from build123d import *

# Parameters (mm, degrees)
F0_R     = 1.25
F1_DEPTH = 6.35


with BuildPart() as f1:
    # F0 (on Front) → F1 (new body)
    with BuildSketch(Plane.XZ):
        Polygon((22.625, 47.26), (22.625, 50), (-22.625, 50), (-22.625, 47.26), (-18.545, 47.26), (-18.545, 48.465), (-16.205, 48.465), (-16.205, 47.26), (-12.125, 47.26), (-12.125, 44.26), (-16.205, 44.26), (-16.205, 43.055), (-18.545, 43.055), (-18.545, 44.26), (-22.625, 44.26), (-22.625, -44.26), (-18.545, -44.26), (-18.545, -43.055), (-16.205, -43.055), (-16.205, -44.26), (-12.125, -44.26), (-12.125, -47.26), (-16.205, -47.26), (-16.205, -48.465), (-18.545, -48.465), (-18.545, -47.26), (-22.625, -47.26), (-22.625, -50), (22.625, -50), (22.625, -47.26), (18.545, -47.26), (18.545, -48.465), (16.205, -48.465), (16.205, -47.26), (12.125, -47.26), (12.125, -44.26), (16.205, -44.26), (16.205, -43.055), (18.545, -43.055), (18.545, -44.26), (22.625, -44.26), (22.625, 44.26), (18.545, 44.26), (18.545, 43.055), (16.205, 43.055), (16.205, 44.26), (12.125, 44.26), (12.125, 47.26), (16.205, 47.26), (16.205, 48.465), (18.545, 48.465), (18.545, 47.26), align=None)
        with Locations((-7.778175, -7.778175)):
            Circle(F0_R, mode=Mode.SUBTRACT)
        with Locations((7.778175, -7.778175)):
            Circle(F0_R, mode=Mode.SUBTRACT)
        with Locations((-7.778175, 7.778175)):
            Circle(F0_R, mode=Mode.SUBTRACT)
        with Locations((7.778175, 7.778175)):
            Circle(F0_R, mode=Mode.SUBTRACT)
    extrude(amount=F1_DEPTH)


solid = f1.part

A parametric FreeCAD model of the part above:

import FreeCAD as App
import Part
import Sketcher
Q = App.Units.Quantity


def add_polygon(sketch, points):
    """Adds a closed chain of lines whose ends are joined by coincident constraints."""
    first, n = sketch.GeometryCount, len(points)
    for a, b in zip(points, points[1:] + points[:1]):
        sketch.addGeometry(Part.LineSegment(App.Vector(*a, 0), App.Vector(*b, 0)), False)
    for i in range(n):
        sketch.addConstraint(Sketcher.Constraint("Coincident", first + i, 2, first + (i + 1) % n, 1))

doc = App.newDocument("Part")
body = doc.addObject("PartDesign::Body", "Body")

sketch1 = doc.addObject("Sketcher::SketchObject", "Sketch")
body.addObject(sketch1)
sketch1.AttachmentSupport = (doc.XZ_Plane, [""])
sketch1.MapMode = "FlatFace"
add_polygon(sketch1, [(22.625, 47.26), (22.625, 50), (-22.625, 50), (-22.625, 47.26), (-18.545, 47.26), (-18.545, 48.465), (-16.205, 48.465), (-16.205, 47.26), (-12.125, 47.26), (-12.125, 44.26), (-16.205, 44.26), (-16.205, 43.055), (-18.545, 43.055), (-18.545, 44.26), (-22.625, 44.26), (-22.625, -44.26), (-18.545, -44.26), (-18.545, -43.055), (-16.205, -43.055), (-16.205, -44.26), (-12.125, -44.26), (-12.125, -47.26), (-16.205, -47.26), (-16.205, -48.465), (-18.545, -48.465), (-18.545, -47.26), (-22.625, -47.26), (-22.625, -50), (22.625, -50), (22.625, -47.26), (18.545, -47.26), (18.545, -48.465), (16.205, -48.465), (16.205, -47.26), (12.125, -47.26), (12.125, -44.26), (16.205, -44.26), (16.205, -43.055), (18.545, -43.055), (18.545, -44.26), (22.625, -44.26), (22.625, 44.26), (18.545, 44.26), (18.545, 43.055), (16.205, 43.055), (16.205, 44.26), (12.125, 44.26), (12.125, 47.26), (16.205, 47.26), (16.205, 48.465), (18.545, 48.465), (18.545, 47.26)])
sketch1.addGeometry(Part.Circle(App.Vector(-7.778175, -7.778175, 0), App.Vector(0, 0, 1), 1.25), False)
sketch1.addGeometry(Part.Circle(App.Vector(7.778175, -7.778175, 0), App.Vector(0, 0, 1), 1.25), False)
sketch1.addGeometry(Part.Circle(App.Vector(-7.778175, 7.778175, 0), App.Vector(0, 0, 1), 1.25), False)
sketch1.addGeometry(Part.Circle(App.Vector(7.778175, 7.778175, 0), App.Vector(0, 0, 1), 1.25), False)
sketch1.addConstraint(Sketcher.Constraint("Vertical", 0))
sketch1.addConstraint(Sketcher.Constraint("Horizontal", 1))
sketch1.addConstraint(Sketcher.Constraint("Vertical", 2))
sketch1.addConstraint(Sketcher.Constraint("Horizontal", 3))
sketch1.addConstraint(Sketcher.Constraint("Vertical", 4))
sketch1.addConstraint(Sketcher.Constraint("Horizontal", 5))
sketch1.addConstraint(Sketcher.Constraint("Vertical", 6))
sketch1.addConstraint(Sketcher.Constraint("Horizontal", 7))
sketch1.addConstraint(Sketcher.Constraint("Vertical", 8))
sketch1.addConstraint(Sketcher.Constraint("Horizontal", 9))
sketch1.addConstraint(Sketcher.Constraint("Vertical", 10))
sketch1.addConstraint(Sketcher.Constraint("Horizontal", 11))
sketch1.addConstraint(Sketcher.Constraint("Vertical", 12))
sketch1.addConstraint(Sketcher.Constraint("Horizontal", 13))
sketch1.addConstraint(Sketcher.Constraint("Vertical", 14))
sketch1.addConstraint(Sketcher.Constraint("Horizontal", 15))
sketch1.addConstraint(Sketcher.Constraint("Vertical", 16))
sketch1.addConstraint(Sketcher.Constraint("Horizontal", 17))
sketch1.addConstraint(Sketcher.Constraint("Vertical", 18))
sketch1.addConstraint(Sketcher.Constraint("Horizontal", 19))
sketch1.addConstraint(Sketcher.Constraint("Vertical", 20))
sketch1.addConstraint(Sketcher.Constraint("Horizontal", 21))
sketch1.addConstraint(Sketcher.Constraint("Vertical", 22))
sketch1.addConstraint(Sketcher.Constraint("Horizontal", 23))
sketch1.addConstraint(Sketcher.Constraint("Vertical", 24))
sketch1.addConstraint(Sketcher.Constraint("Horizontal", 25))
sketch1.addConstraint(Sketcher.Constraint("Vertical", 26))
sketch1.addConstraint(Sketcher.Constraint("Horizontal", 27))
sketch1.addConstraint(Sketcher.Constraint("Vertical", 28))
sketch1.addConstraint(Sketcher.Constraint("Horizontal", 29))
sketch1.addConstraint(Sketcher.Constraint("Vertical", 30))
sketch1.addConstraint(Sketcher.Constraint("Horizontal", 31))
sketch1.addConstraint(Sketcher.Constraint("Vertical", 32))
sketch1.addConstraint(Sketcher.Constraint("Horizontal", 33))
sketch1.addConstraint(Sketcher.Constraint("Vertical", 34))
sketch1.addConstraint(Sketcher.Constraint("Horizontal", 35))
sketch1.addConstraint(Sketcher.Constraint("Vertical", 36))
sketch1.addConstraint(Sketcher.Constraint("Horizontal", 37))
sketch1.addConstraint(Sketcher.Constraint("Vertical", 38))
sketch1.addConstraint(Sketcher.Constraint("Horizontal", 39))
sketch1.addConstraint(Sketcher.Constraint("Vertical", 40))
sketch1.addConstraint(Sketcher.Constraint("Horizontal", 41))
sketch1.addConstraint(Sketcher.Constraint("Vertical", 42))
sketch1.addConstraint(Sketcher.Constraint("Horizontal", 43))
sketch1.addConstraint(Sketcher.Constraint("Vertical", 44))
sketch1.addConstraint(Sketcher.Constraint("Horizontal", 45))
sketch1.addConstraint(Sketcher.Constraint("Vertical", 46))
sketch1.addConstraint(Sketcher.Constraint("Horizontal", 47))
sketch1.addConstraint(Sketcher.Constraint("Vertical", 48))
sketch1.addConstraint(Sketcher.Constraint("Horizontal", 49))
sketch1.addConstraint(Sketcher.Constraint("Vertical", 50))
sketch1.addConstraint(Sketcher.Constraint("Horizontal", 51))
sketch1.addConstraint(Sketcher.Constraint("Equal", 52, 53))
sketch1.addConstraint(Sketcher.Constraint("Equal", 53, 54))
sketch1.addConstraint(Sketcher.Constraint("Equal", 54, 55))
sketch1.addConstraint(Sketcher.Constraint("Symmetric", 53, 3, 54, 3, -1, 1))
sketch1.addConstraint(Sketcher.Constraint("Symmetric", 52, 3, 55, 3, -1, 1))
sketch1.addConstraint(Sketcher.Constraint("Symmetric", 0, 2, 26, 2, -1, 1))
sketch1.addConstraint(Sketcher.Constraint("Symmetric", 2, 2, 28, 2, -1, 1))
sketch1.addConstraint(Sketcher.Constraint("Symmetric", 4, 2, 30, 2, -1, 1))
sketch1.addConstraint(Sketcher.Constraint("Symmetric", 6, 2, 32, 2, -1, 1))
sketch1.addConstraint(Sketcher.Constraint("Symmetric", 8, 2, 34, 2, -1, 1))
sketch1.addConstraint(Sketcher.Constraint("Symmetric", 10, 2, 36, 2, -1, 1))
sketch1.addConstraint(Sketcher.Constraint("Symmetric", 12, 2, 38, 2, -1, 1))
sketch1.addConstraint(Sketcher.Constraint("Symmetric", 14, 2, 40, 2, -1, 1))
sketch1.addConstraint(Sketcher.Constraint("Symmetric", 16, 2, 42, 2, -1, 1))
sketch1.addConstraint(Sketcher.Constraint("Symmetric", 18, 2, 44, 2, -1, 1))
sketch1.addConstraint(Sketcher.Constraint("Symmetric", 20, 2, 46, 2, -1, 1))
sketch1.addConstraint(Sketcher.Constraint("Symmetric", 22, 2, 48, 2, -1, 1))
sketch1.addConstraint(Sketcher.Constraint("Symmetric", 24, 2, 50, 2, -1, 1))
sketch1.addConstraint(Sketcher.Constraint("Symmetric", 52, 3, 53, 3, -2))
sketch1.addConstraint(Sketcher.Constraint("Symmetric", 25, 2, 28, 2, -2))
sketch1.addConstraint(Sketcher.Constraint("Symmetric", 23, 2, 30, 2, -2))
sketch1.addConstraint(Sketcher.Constraint("Symmetric", 21, 2, 32, 2, -2))
sketch1.addConstraint(Sketcher.Constraint("Symmetric", 19, 2, 34, 2, -2))
sketch1.addConstraint(Sketcher.Constraint("Symmetric", 17, 2, 36, 2, -2))
sketch1.addConstraint(Sketcher.Constraint("Symmetric", 15, 2, 38, 2, -2))
sketch1.addConstraint(Sketcher.Constraint("Horizontal", 3, 2, 6, 2))
sketch1.addConstraint(Sketcher.Constraint("Horizontal", 9, 2, 12, 2))
sketch1.addConstraint(Sketcher.Constraint("Vertical", 6, 2, 9, 2))
sketch1.addConstraint(Sketcher.Constraint("Vertical", 4, 2, 11, 2))
sketch1.addConstraint(Sketcher.Constraint("Vertical", 2, 2, 13, 2))
sketch1.addConstraint(Sketcher.Constraint("Equal", 3, 7))
sketch1.addConstraint(Sketcher.Constraint("Equal", 6, 10))
sketch1.addConstraint(Sketcher.Constraint("Diameter", 52, Q("2.5 mm")))
sketch1.addConstraint(Sketcher.Constraint("DistanceY", 8, 2, 8, 1, Q("3 mm")))
sketch1.addConstraint(Sketcher.Constraint("DistanceY", -1, 1, 0, 2, Q("50 mm")))
sketch1.addConstraint(Sketcher.Constraint("DistanceX", 1, 2, 1, 1, Q("45.25 mm")))
sketch1.addConstraint(Sketcher.Constraint("DistanceX", 3, 1, 3, 2, Q("4.08 mm")))
sketch1.addConstraint(Sketcher.Constraint("DistanceX", 5, 1, 5, 2, Q("2.34 mm")))
sketch1.addConstraint(Sketcher.Constraint("DistanceY", 0, 1, 0, 2, Q("2.74 mm")))
sketch1.addConstraint(Sketcher.Constraint("DistanceY", 4, 1, 4, 2, Q("1.205 mm")))
sketch1.addConstraint(Sketcher.Constraint("DistanceX", 52, 3, 53, 3, Q("15.55635 mm")))
sketch1.addConstraint(Sketcher.Constraint("DistanceY", 52, 3, 54, 3, Q("15.55635 mm")))
pad1 = doc.addObject("PartDesign::Pad", "Pad")
body.addObject(pad1)
pad1.Profile = sketch1
pad1.Length = 6.35

doc.recompute()
